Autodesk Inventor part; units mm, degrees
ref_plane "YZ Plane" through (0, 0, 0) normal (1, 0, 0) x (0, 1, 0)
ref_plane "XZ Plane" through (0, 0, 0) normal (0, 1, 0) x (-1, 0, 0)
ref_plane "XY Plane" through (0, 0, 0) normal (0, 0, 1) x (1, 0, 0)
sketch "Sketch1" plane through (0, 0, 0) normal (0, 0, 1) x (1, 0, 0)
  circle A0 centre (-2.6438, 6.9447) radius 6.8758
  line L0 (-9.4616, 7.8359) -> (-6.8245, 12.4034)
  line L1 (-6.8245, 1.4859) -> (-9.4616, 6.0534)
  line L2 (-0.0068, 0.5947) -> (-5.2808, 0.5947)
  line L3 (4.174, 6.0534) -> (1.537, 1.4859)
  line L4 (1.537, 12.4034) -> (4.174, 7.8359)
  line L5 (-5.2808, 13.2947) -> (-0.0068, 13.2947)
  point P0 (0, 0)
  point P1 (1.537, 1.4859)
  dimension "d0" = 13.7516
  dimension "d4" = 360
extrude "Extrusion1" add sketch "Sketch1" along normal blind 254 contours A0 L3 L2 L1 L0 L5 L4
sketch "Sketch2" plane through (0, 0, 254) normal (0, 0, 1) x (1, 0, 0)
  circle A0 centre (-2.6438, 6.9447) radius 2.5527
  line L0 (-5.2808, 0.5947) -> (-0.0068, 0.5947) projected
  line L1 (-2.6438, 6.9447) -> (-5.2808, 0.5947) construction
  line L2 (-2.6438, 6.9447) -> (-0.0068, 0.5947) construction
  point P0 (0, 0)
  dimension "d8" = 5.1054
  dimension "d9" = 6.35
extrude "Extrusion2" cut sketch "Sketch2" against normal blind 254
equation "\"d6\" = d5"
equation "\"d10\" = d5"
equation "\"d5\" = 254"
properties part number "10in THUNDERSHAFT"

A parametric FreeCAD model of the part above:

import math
import FreeCAD as App
import Part
import Sketcher

V = App.Vector
Q = App.Units.Quantity

doc = App.newDocument("Part")
body = doc.addObject("PartDesign::Body", "Body")

# Sketch on XY plane
sketch1 = body.newObject("Sketcher::SketchObject", "Sketch")
sketch1.AttachmentSupport = (doc.getObject("XY_Plane"), [""])
sketch1.MapMode = "FlatFace"
sketch1.addGeometry(Part.ArcOfCircle(Part.Circle(V(-2.6, 6.9, 0), V(0, 0, 1), 6.9), math.radians(-7.45), math.radians(7.45)), False)
sketch1.addGeometry(Part.LineSegment(V(4.2, 7.8, 0), V(1.5, 12.4, 0)), False)
sketch1.addGeometry(Part.ArcOfCircle(Part.Circle(V(-2.6, 6.9, 0), V(0, 0, 1), 6.9), math.radians(52.55), math.radians(67.45)), False)
sketch1.addGeometry(Part.LineSegment(V(0, 13.3, 0), V(-5.3, 13.3, 0)), False)
sketch1.addGeometry(Part.ArcOfCircle(Part.Circle(V(-2.6, 6.9, 0), V(0, 0, 1), 6.9), math.radians(112.55), math.radians(127.45)), False)
sketch1.addGeometry(Part.LineSegment(V(-6.8, 12.4, 0), V(-9.5, 7.8, 0)), False)
sketch1.addGeometry(Part.ArcOfCircle(Part.Circle(V(-2.6, 6.9, 0), V(0, 0, 1), 6.9), math.radians(172.55), math.radians(187.45)), False)
sketch1.addGeometry(Part.LineSegment(V(-9.5, 6.1, 0), V(-6.8, 1.5, 0)), False)
sketch1.addGeometry(Part.ArcOfCircle(Part.Circle(V(-2.6, 6.9, 0), V(0, 0, 1), 6.9), math.radians(-127.45), math.radians(-112.55)), False)
sketch1.addGeometry(Part.LineSegment(V(-5.3, 0.6, 0), V(0, 0.6, 0)), False)
sketch1.addGeometry(Part.ArcOfCircle(Part.Circle(V(-2.6, 6.9, 0), V(0, 0, 1), 6.9), math.radians(-67.45), math.radians(-52.55)), False)
sketch1.addGeometry(Part.LineSegment(V(1.5, 1.5, 0), V(4.2, 6.1, 0)), False)
sketch1.addConstraint(Sketcher.Constraint("Coincident", 0, 2, 1, 1))
sketch1.addConstraint(Sketcher.Constraint("Coincident", 1, 2, 2, 1))
sketch1.addConstraint(Sketcher.Constraint("Coincident", 2, 2, 3, 1))
sketch1.addConstraint(Sketcher.Constraint("Coincident", 3, 2, 4, 1))
sketch1.addConstraint(Sketcher.Constraint("Coincident", 4, 2, 5, 1))
sketch1.addConstraint(Sketcher.Constraint("Coincident", 5, 2, 6, 1))
sketch1.addConstraint(Sketcher.Constraint("Coincident", 6, 2, 7, 1))
sketch1.addConstraint(Sketcher.Constraint("Coincident", 7, 2, 8, 1))
sketch1.addConstraint(Sketcher.Constraint("Coincident", 8, 2, 9, 1))
sketch1.addConstraint(Sketcher.Constraint("Coincident", 9, 2, 10, 1))
sketch1.addConstraint(Sketcher.Constraint("Coincident", 10, 2, 11, 1))
sketch1.addConstraint(Sketcher.Constraint("Coincident", 11, 2, 0, 1))
sketch1.addConstraint(Sketcher.Constraint("Horizontal", 3))
sketch1.addConstraint(Sketcher.Constraint("Horizontal", 9))
sketch1.addConstraint(Sketcher.Constraint("Coincident", 2, 3, 0, 3))
sketch1.addConstraint(Sketcher.Constraint("Coincident", 4, 3, 0, 3))
sketch1.addConstraint(Sketcher.Constraint("Coincident", 6, 3, 0, 3))
sketch1.addConstraint(Sketcher.Constraint("Coincident", 8, 3, 0, 3))
sketch1.addConstraint(Sketcher.Constraint("Coincident", 10, 3, 0, 3))
sketch1.addConstraint(Sketcher.Constraint("Equal", 0, 2))
sketch1.addConstraint(Sketcher.Constraint("Equal", 2, 4))
sketch1.addConstraint(Sketcher.Constraint("Equal", 4, 6))
sketch1.addConstraint(Sketcher.Constraint("Equal", 6, 8))
sketch1.addConstraint(Sketcher.Constraint("Equal", 8, 10))
sketch1.addConstraint(Sketcher.Constraint("Parallel", 1, 7))
sketch1.addConstraint(Sketcher.Constraint("Parallel", 5, 11))
sketch1.addConstraint(Sketcher.Constraint("Horizontal", 1, 2, 4, 2))
sketch1.addConstraint(Sketcher.Constraint("Horizontal", 0, 2, 5, 2))
sketch1.addConstraint(Sketcher.Constraint("Horizontal", 7, 2, 10, 2))
sketch1.addConstraint(Sketcher.Constraint("Vertical", 5, 2, 6, 2))
sketch1.addConstraint(Sketcher.Constraint("Vertical", 3, 2, 8, 2))
sketch1.addConstraint(Sketcher.Constraint("Radius", 0, Q("0.2707 in")))
sketch1.addConstraint(Sketcher.Constraint("Angle", 1, Q("119.9996 deg")))
sketch1.addConstraint(Sketcher.Constraint("DistanceY", 0, 3, 2, 2, Q("0.25 in")))
sketch1.addConstraint(Sketcher.Constraint("DistanceY", 10, 2, 0, 2, Q("0.25 in")))
sketch1.addConstraint(Sketcher.Constraint("DistanceY", -1, 1, 0, 2, Q("0.3085 in")))
sketch1.addConstraint(Sketcher.Constraint("DistanceX", -1, 1, 1, 2, Q("0.0605 in")))
pad1 = body.newObject("PartDesign::Pad", "Pad")
pad1.Profile = sketch1
pad1.Length = Q("10 in")

# Sketch on XY plane
sketch2 = body.newObject("Sketcher::SketchObject", "Sketch001")
sketch2.AttachmentSupport = (doc.getObject("XY_Plane"), [""])
sketch2.MapMode = "FlatFace"
sketch2.AttachmentOffset = App.Placement(V(0, 0, 10 * 25.4), App.Rotation())
sketch2.addGeometry(Part.Circle(V(-2.6, 6.9, 0), V(0, 0, 1), 2.6), False)
sketch2.addConstraint(Sketcher.Constraint("Diameter", 0, Q("0.201 in")))
sketch2.addConstraint(Sketcher.Constraint("DistanceX", 0, 3, -1, 1, Q("2.6438 mm")))
sketch2.addConstraint(Sketcher.Constraint("DistanceY", -1, 1, 0, 3, Q("6.9447 mm")))
pocket1 = body.newObject("PartDesign::Pocket", "Pocket")
pocket1.Profile = sketch2
pocket1.Length = Q("10 in")

doc.recompute()
